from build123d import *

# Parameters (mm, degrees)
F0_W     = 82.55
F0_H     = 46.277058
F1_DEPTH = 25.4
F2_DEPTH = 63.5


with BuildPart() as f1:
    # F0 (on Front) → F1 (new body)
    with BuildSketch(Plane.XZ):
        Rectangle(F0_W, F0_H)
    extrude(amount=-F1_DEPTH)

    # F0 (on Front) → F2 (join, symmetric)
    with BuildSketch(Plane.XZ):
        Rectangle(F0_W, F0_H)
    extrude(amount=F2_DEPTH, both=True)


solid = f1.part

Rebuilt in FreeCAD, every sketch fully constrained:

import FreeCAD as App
import Part
import Sketcher
from FreeCAD import Vector
Q = App.Units.Quantity

doc = App.newDocument("Part")
params = doc.addObject("Spreadsheet::Sheet", "Params")
for row, (alias, value) in enumerate([
    ("sketch1_width", "3.25 in"),
    ("pad1_length", "1 in"),
    ("sketch2_width", "3.25 in"),
    ("pad2_length", "5 in"),
], start=1):
    params.set(f"A{row}", alias)
    params.set(f"B{row}", "=" + value)
    params.setAlias(f"B{row}", alias)

body = doc.addObject("PartDesign::Body", "Body")

# Sketch on XZ plane
sketch1 = body.newObject("Sketcher::SketchObject", "Sketch")
sketch1.AttachmentSupport = (doc.getObject("XZ_Plane"), [""])
sketch1.MapMode = "FlatFace"
sketch1.addGeometry([
    Part.LineSegment(Vector(-41.275, 23.138529, 0), Vector(-41.275, -23.138529, 0)),
    Part.LineSegment(Vector(-41.275, -23.138529, 0), Vector(41.275, -23.138529, 0)),
    Part.LineSegment(Vector(41.275, -23.138529, 0), Vector(41.275, 23.138529, 0)),
    Part.LineSegment(Vector(41.275, 23.138529, 0), Vector(-41.275, 23.138529, 0)),
], False)
sketch1.addConstraint([
    Sketcher.Constraint("Coincident", 0, 2, 1, 1),
    Sketcher.Constraint("Coincident", 1, 2, 2, 1),
    Sketcher.Constraint("Coincident", 2, 2, 3, 1),
    Sketcher.Constraint("Coincident", 3, 2, 0, 1),
    Sketcher.Constraint("Vertical", 0),
    Sketcher.Constraint("Horizontal", 1),
    Sketcher.Constraint("Vertical", 2),
    Sketcher.Constraint("Horizontal", 3),
    Sketcher.Constraint("Symmetric", 0, 2, 2, 2, -1, 1),
    Sketcher.Constraint("DistanceX", 1, 1, 1, 2, Q("3.25 in")),
    Sketcher.Constraint("DistanceY", 0, 2, 0, 1, Q("46.277058 mm")),
])
sketch1.setExpression("Constraints[9]", "Params.sketch1_width")
pad1 = body.newObject("PartDesign::Pad", "Pad")
pad1.Profile = sketch1
pad1.setExpression("Length", "Params.pad1_length")
pad1.Reversed = True

# Sketch on XZ plane
sketch2 = body.newObject("Sketcher::SketchObject", "Sketch001")
sketch2.AttachmentSupport = (doc.getObject("XZ_Plane"), [""])
sketch2.MapMode = "FlatFace"
sketch2.addGeometry([
    Part.LineSegment(Vector(-41.275, 23.138529, 0), Vector(-41.275, -23.138529, 0)),
    Part.LineSegment(Vector(-41.275, -23.138529, 0), Vector(41.275, -23.138529, 0)),
    Part.LineSegment(Vector(41.275, -23.138529, 0), Vector(41.275, 23.138529, 0)),
    Part.LineSegment(Vector(41.275, 23.138529, 0), Vector(-41.275, 23.138529, 0)),
], False)
sketch2.addConstraint([
    Sketcher.Constraint("Coincident", 0, 2, 1, 1),
    Sketcher.Constraint("Coincident", 1, 2, 2, 1),
    Sketcher.Constraint("Coincident", 2, 2, 3, 1),
    Sketcher.Constraint("Coincident", 3, 2, 0, 1),
    Sketcher.Constraint("Vertical", 0),
    Sketcher.Constraint("Horizontal", 1),
    Sketcher.Constraint("Vertical", 2),
    Sketcher.Constraint("Horizontal", 3),
    Sketcher.Constraint("Symmetric", 0, 2, 2, 2, -1, 1),
    Sketcher.Constraint("DistanceX", 1, 1, 1, 2, Q("3.25 in")),
    Sketcher.Constraint("DistanceY", 0, 2, 0, 1, Q("46.277058 mm")),
])
sketch2.setExpression("Constraints[9]", "Params.sketch2_width")
pad2 = body.newObject("PartDesign::Pad", "Pad001")
pad2.Profile = sketch2
pad2.setExpression("Length", "Params.pad2_length")
pad2.Midplane = True

doc.recompute()
